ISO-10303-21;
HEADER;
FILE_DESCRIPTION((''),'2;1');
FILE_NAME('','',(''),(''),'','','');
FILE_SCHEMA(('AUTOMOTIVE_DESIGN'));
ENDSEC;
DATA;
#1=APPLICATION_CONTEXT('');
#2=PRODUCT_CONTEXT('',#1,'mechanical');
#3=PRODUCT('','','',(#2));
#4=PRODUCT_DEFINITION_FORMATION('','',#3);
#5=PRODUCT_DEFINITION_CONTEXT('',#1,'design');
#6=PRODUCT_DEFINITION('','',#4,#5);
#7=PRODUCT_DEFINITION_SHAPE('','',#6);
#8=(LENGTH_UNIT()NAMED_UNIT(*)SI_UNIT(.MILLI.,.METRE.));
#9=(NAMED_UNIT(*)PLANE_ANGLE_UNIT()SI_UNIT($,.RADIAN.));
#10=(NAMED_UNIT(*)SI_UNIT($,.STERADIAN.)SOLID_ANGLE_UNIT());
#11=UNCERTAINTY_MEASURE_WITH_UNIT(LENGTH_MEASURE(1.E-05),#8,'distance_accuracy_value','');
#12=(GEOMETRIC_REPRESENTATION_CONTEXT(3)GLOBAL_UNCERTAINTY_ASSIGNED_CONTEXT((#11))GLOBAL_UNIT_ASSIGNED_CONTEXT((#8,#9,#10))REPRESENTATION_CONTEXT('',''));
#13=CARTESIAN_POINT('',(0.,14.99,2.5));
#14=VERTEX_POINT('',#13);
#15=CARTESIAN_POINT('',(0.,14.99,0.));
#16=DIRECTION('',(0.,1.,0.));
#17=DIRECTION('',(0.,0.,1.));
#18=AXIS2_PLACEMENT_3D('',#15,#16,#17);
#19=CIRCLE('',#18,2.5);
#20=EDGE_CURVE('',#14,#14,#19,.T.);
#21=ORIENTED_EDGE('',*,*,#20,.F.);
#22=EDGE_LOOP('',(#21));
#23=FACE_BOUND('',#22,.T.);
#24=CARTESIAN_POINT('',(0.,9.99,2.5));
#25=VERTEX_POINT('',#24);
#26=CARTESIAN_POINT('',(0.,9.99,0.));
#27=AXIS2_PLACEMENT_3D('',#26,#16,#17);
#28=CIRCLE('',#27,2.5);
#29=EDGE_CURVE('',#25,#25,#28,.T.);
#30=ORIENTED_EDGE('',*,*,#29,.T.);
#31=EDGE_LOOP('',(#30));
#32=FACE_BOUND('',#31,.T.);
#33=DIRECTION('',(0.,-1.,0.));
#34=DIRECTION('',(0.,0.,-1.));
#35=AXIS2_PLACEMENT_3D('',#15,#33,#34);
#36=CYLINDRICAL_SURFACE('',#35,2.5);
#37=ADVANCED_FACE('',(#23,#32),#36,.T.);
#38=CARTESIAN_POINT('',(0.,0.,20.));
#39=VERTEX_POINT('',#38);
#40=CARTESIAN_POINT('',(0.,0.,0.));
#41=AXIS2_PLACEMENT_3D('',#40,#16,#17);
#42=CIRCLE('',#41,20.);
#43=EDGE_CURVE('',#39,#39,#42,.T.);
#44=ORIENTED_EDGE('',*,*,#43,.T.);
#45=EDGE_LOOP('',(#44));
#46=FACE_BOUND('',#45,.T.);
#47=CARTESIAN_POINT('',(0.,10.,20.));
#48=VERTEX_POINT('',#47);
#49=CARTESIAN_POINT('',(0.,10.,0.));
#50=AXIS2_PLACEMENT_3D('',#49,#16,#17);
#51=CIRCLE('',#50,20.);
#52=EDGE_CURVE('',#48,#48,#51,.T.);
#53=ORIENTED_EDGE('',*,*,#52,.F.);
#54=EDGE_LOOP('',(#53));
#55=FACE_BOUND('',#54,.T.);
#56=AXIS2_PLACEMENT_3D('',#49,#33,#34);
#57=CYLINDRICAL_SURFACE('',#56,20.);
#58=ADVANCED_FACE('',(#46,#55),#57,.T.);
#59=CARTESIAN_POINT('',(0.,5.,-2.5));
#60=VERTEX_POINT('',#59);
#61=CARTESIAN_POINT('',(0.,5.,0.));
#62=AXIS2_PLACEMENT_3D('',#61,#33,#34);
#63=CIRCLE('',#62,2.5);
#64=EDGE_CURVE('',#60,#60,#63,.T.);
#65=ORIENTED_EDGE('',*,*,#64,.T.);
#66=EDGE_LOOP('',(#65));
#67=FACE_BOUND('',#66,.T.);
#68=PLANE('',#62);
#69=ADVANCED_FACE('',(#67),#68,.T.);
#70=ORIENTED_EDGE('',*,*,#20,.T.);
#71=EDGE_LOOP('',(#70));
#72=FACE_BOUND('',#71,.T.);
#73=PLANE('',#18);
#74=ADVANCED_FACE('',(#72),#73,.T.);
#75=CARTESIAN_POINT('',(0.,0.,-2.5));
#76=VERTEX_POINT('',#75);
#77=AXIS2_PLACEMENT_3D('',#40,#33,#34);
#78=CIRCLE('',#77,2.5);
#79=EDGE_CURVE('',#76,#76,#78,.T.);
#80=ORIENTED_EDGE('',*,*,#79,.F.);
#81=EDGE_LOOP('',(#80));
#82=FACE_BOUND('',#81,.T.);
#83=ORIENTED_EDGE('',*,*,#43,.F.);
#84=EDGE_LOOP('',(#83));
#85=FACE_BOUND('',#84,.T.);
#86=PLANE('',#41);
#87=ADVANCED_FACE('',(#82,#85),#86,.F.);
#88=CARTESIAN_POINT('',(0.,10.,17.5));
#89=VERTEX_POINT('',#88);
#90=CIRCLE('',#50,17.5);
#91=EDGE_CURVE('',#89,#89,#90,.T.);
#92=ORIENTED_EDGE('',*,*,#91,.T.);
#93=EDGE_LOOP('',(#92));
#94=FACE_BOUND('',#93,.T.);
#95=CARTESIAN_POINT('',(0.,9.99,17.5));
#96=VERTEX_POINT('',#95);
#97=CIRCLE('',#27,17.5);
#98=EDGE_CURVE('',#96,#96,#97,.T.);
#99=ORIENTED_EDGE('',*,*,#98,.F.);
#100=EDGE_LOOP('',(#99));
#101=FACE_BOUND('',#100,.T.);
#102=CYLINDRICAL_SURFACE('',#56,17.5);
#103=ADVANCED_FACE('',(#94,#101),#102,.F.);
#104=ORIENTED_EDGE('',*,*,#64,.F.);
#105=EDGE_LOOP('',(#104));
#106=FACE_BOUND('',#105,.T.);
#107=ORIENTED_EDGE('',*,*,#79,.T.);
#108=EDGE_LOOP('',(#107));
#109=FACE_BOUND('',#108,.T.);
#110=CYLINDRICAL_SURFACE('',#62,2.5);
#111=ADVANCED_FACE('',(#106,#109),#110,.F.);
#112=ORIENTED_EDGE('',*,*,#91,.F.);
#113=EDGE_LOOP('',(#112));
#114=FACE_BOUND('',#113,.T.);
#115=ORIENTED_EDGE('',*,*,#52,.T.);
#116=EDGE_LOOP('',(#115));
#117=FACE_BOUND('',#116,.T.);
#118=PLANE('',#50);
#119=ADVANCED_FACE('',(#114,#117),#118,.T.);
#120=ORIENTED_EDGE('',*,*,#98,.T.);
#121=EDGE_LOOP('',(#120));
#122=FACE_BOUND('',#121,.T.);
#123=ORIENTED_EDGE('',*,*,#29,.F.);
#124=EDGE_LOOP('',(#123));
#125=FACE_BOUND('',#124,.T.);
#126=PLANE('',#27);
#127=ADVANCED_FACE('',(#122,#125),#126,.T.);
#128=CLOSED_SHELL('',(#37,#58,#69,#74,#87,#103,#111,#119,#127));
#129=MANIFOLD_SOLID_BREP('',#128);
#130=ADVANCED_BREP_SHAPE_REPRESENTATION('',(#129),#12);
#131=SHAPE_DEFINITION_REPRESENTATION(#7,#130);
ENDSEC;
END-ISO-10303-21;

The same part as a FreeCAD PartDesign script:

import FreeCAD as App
import Part
import Sketcher

V = App.Vector

doc = App.newDocument("Part")
body = doc.addObject("PartDesign::Body", "Body")

sketch1 = body.newObject("Sketcher::SketchObject", "Sketch")
sketch1.AttachmentSupport = (doc.getObject("XZ_Plane"), [""])
sketch1.MapMode = "FlatFace"
sketch1.addGeometry([
    Part.Circle(V(0, 0, 0), V(0, 0, 1), 20),
    Part.Circle(V(0, 0, 0), V(0, 0, 1), 18),
], False)
sketch1.addConstraint([
    Sketcher.Constraint("Coincident", 0, 3, -1, 1),
    Sketcher.Constraint("Coincident", 1, 3, -1, 1),
    Sketcher.Constraint("Diameter", 0, 40.0),
    Sketcher.Constraint("Diameter", 1, 35.0),
])
pad1 = body.newObject("PartDesign::Pad", "Pad")
pad1.Profile = sketch1
pad1.Length = 10
pad1.Reversed = True
body2 = doc.addObject("PartDesign::Body", "Body001")

sketch2 = body2.newObject("Sketcher::SketchObject", "Sketch001")
sketch2.AttachmentSupport = (doc.getObject("XZ_Plane001"), [""])
sketch2.MapMode = "FlatFace"
sketch2.addGeometry(Part.Circle(V(0, 0, 0), V(0, 0, 1), 18), False)
sketch2.addConstraint([
    Sketcher.Constraint("Coincident", 0, 3, -1, 1),
    Sketcher.Constraint("Diameter", 0, 35.0),
])
pad2 = body2.newObject("PartDesign::Pad", "Pad001")
pad2.Profile = sketch2
pad2.Length = 9.99
pad2.Reversed = True
doc.recompute()

boolean = body.newObject("PartDesign::Boolean", "Boolean")
boolean.Type = "Fuse"
boolean.addObjects([body2])

sketch3 = body.newObject("Sketcher::SketchObject", "Sketch002")
sketch3.AttachmentSupport = (doc.getObject("XZ_Plane"), [""])
sketch3.MapMode = "FlatFace"
sketch3.AttachmentOffset = App.Placement(V(0, 0, -9.99), App.Rotation())
sketch3.addGeometry(Part.Circle(V(0, 0, 0), V(0, 0, 1), 2.5), False)
sketch3.addConstraint([
    Sketcher.Constraint("Coincident", 0, 3, -1, 1),
    Sketcher.Constraint("Diameter", 0, 5.0),
])
pad3 = body.newObject("PartDesign::Pad", "Pad002")
pad3.Profile = sketch3
pad3.Length = 5
pad3.Reversed = True

sketch4 = body.newObject("Sketcher::SketchObject", "Sketch003")
sketch4.AttachmentSupport = (doc.getObject("XZ_Plane"), [""])
sketch4.MapMode = "FlatFace"
sketch4.addGeometry(Part.Circle(V(0, 0, 0), V(0, 0, 1), 2.5), False)
sketch4.addConstraint([
    Sketcher.Constraint("Coincident", 0, 3, -1, 1),
    Sketcher.Constraint("Diameter", 0, 5.0),
])
pocket1 = body.newObject("PartDesign::Pocket", "Pocket")
pocket1.Profile = sketch4
pocket1.Length = 5

doc.recompute()
